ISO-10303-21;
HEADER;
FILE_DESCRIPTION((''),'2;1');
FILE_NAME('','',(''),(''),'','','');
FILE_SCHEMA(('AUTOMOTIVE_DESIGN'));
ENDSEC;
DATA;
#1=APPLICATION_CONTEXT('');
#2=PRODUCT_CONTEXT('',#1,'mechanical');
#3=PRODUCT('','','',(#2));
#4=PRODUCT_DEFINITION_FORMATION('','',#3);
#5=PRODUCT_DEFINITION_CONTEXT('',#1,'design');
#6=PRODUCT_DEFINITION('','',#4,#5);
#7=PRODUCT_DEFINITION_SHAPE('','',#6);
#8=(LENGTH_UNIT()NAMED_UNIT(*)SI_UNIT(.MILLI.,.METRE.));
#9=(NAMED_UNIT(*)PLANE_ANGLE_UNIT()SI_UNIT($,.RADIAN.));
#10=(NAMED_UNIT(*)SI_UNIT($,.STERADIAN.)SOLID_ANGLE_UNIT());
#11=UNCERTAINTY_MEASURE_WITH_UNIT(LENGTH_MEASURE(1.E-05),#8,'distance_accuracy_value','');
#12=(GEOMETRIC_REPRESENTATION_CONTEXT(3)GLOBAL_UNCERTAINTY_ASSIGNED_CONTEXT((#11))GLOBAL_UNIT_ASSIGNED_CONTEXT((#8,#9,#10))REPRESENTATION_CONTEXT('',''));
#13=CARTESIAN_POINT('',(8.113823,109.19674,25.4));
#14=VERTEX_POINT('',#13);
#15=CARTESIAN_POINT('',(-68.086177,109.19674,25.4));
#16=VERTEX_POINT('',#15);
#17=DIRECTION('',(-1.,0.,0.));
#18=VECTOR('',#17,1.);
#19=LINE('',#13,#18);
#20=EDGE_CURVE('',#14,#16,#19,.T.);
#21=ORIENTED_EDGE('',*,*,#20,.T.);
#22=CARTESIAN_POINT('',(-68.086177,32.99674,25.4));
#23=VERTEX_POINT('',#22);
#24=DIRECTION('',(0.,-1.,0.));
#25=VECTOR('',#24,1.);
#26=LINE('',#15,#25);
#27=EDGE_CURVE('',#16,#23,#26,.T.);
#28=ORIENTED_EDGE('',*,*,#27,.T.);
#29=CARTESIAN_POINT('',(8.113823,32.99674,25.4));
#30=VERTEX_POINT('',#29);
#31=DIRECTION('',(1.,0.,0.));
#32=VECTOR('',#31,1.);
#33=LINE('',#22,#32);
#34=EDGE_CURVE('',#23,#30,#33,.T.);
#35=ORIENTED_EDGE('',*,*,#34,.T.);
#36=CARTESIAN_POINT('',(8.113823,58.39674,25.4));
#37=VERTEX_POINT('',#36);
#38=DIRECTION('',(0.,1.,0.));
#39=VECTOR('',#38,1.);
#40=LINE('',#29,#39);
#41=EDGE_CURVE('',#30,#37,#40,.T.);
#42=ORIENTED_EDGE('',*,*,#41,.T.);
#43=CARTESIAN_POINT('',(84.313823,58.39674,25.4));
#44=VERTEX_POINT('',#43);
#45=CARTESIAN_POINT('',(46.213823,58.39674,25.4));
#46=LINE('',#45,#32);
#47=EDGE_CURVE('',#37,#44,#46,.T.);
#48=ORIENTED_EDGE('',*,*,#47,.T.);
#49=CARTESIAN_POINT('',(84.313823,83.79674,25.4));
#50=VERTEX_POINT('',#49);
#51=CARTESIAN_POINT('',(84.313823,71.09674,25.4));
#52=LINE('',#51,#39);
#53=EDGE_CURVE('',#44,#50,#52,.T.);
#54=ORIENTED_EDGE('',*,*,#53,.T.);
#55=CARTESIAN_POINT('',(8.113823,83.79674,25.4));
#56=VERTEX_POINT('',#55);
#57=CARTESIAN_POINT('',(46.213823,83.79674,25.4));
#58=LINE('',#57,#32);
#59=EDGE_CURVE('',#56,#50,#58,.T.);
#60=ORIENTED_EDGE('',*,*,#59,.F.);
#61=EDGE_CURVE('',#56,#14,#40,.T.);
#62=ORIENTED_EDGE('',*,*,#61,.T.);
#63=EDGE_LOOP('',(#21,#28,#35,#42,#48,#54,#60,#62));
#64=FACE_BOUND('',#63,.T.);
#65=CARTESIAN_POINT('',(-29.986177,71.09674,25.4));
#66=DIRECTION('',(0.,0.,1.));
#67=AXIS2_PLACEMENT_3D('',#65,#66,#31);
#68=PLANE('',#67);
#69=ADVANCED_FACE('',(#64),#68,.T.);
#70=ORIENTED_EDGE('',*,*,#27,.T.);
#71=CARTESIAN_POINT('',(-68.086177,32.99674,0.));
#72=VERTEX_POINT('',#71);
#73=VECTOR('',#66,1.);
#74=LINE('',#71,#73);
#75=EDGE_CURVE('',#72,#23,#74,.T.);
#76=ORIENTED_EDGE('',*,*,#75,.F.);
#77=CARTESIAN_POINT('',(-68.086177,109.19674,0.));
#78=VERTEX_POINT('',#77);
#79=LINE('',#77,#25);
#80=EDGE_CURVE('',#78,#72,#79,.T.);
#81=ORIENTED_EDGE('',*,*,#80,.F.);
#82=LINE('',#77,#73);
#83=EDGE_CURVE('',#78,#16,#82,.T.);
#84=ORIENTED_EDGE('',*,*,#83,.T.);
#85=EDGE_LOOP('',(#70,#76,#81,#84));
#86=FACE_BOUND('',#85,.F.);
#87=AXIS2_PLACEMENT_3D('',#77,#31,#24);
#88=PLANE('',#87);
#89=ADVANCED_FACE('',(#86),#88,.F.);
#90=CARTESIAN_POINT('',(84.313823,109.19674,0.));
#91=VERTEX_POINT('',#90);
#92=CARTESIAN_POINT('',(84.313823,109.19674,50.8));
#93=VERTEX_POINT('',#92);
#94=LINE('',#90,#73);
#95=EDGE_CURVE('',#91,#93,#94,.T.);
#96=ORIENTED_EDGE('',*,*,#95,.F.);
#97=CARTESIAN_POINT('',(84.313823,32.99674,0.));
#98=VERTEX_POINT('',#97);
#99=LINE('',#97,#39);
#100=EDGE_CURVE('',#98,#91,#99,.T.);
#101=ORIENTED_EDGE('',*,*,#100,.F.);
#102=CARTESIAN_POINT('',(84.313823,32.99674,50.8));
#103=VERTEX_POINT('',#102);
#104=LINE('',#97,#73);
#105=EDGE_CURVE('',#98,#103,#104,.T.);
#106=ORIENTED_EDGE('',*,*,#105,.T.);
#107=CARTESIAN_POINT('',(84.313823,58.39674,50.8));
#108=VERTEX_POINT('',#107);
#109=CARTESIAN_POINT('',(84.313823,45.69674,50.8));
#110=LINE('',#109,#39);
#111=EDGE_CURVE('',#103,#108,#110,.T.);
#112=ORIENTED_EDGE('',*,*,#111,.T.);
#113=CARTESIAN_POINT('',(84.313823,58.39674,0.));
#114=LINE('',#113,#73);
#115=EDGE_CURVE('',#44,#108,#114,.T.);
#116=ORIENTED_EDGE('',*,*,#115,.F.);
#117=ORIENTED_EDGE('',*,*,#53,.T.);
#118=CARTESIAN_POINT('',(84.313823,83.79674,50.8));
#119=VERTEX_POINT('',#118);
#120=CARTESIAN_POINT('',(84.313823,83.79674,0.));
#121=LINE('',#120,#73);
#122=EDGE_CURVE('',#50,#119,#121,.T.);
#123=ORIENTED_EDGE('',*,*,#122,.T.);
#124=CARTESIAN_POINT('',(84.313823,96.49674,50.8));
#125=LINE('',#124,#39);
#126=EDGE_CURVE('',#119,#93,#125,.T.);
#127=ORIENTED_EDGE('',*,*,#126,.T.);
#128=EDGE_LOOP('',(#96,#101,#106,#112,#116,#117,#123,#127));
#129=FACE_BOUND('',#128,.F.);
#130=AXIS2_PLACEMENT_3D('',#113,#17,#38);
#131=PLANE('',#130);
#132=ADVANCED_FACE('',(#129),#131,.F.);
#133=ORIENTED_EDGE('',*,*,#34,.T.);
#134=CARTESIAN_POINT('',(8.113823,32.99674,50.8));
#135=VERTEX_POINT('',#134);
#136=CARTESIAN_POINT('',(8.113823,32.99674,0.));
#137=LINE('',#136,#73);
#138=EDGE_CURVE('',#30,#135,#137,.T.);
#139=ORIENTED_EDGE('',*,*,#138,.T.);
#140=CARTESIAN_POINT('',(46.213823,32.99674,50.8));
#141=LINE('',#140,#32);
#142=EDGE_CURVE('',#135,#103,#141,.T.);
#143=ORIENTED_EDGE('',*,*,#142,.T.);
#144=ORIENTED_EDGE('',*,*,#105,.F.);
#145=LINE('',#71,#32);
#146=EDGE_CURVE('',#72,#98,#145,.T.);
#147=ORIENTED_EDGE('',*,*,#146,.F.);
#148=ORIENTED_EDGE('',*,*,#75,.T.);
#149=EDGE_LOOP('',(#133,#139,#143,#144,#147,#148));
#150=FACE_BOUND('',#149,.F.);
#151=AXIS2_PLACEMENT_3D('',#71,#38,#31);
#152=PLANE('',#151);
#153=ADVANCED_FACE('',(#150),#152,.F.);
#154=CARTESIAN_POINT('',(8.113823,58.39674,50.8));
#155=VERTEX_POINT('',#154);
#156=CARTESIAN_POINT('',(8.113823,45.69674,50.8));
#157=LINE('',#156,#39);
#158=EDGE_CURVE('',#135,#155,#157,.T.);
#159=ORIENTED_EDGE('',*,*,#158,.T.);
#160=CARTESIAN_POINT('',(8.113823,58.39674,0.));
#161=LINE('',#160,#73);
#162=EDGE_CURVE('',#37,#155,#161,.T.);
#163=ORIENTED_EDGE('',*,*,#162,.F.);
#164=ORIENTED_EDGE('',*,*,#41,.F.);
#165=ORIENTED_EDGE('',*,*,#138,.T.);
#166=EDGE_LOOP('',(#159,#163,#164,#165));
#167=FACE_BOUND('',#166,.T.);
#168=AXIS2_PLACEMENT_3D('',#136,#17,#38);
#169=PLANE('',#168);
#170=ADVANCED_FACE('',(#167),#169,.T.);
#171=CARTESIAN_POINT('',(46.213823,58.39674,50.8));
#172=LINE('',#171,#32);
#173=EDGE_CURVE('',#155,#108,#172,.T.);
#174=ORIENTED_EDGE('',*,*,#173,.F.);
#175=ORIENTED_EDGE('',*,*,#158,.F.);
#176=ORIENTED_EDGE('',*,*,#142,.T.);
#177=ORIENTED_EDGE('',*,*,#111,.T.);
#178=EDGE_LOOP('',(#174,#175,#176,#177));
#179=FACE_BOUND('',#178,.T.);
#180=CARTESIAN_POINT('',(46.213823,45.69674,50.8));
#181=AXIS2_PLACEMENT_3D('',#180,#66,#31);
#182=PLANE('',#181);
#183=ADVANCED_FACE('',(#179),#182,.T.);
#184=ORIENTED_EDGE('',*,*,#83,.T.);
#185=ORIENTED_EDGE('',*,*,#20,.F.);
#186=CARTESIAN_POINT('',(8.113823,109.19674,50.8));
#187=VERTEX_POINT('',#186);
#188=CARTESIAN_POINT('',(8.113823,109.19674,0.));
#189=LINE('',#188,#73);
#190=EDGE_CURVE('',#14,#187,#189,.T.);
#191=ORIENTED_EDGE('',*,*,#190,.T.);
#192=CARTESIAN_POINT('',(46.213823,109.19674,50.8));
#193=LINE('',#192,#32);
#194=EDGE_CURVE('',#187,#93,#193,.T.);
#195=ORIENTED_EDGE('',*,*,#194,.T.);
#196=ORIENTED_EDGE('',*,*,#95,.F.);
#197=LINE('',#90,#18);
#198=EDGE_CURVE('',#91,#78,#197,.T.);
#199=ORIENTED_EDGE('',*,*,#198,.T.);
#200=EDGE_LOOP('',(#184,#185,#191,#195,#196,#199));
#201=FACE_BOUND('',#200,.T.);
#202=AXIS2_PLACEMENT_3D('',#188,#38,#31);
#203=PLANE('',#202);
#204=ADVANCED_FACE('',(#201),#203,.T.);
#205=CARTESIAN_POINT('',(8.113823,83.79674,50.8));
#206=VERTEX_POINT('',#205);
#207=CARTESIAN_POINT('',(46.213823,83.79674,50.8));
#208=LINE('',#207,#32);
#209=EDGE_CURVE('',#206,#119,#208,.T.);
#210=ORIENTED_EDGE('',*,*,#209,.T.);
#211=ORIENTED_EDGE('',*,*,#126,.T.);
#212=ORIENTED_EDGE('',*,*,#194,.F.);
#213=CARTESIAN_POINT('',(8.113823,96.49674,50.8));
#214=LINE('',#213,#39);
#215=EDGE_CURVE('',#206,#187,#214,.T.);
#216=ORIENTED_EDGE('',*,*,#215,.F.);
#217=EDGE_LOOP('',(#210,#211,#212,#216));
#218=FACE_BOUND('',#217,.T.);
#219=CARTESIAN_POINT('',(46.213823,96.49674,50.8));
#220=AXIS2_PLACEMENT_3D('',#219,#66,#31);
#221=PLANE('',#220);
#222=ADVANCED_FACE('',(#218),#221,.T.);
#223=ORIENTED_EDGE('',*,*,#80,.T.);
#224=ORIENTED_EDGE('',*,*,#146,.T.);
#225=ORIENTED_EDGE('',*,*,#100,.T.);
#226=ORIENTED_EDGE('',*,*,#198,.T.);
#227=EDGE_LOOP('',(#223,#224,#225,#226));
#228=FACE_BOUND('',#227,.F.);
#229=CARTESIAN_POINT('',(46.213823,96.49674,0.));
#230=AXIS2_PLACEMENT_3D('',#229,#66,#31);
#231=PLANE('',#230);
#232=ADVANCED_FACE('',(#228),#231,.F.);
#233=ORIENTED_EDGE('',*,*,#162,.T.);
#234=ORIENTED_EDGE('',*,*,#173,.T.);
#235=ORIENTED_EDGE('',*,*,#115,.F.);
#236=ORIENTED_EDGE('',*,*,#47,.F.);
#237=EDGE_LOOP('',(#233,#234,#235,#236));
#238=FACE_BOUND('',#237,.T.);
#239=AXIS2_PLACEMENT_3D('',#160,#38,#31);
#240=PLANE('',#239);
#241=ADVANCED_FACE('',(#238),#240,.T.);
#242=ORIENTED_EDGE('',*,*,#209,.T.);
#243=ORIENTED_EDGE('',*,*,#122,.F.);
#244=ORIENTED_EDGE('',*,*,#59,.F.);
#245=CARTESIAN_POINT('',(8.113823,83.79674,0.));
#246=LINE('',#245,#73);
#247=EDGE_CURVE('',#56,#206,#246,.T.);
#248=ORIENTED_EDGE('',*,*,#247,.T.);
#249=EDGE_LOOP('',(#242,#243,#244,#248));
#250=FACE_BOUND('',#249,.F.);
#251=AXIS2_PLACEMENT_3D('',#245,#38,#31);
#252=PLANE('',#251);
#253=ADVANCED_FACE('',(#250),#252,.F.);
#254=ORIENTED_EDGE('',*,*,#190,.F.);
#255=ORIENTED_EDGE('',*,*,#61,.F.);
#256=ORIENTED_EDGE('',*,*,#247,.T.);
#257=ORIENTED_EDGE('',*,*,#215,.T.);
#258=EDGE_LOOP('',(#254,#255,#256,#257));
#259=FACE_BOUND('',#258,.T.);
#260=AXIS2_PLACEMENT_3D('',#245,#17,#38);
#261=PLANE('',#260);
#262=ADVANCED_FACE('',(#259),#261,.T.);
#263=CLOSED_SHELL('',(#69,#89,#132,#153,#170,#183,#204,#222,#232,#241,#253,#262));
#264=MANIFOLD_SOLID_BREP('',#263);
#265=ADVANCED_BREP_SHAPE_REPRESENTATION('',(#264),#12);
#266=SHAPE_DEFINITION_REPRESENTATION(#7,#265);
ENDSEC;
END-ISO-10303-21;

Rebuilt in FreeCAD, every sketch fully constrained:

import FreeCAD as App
import Part
import Sketcher
from FreeCAD import Vector
Q = App.Units.Quantity


def add_polygon(sketch, points):
    """Adds a closed chain of lines whose ends are joined by coincident constraints."""
    first, n = sketch.GeometryCount, len(points)
    for a, b in zip(points, points[1:] + points[:1]):
        sketch.addGeometry(Part.LineSegment(App.Vector(*a, 0), App.Vector(*b, 0)), False)
    for i in range(n):
        sketch.addConstraint(Sketcher.Constraint("Coincident", first + i, 2, first + (i + 1) % n, 1))

doc = App.newDocument("Part")
body = doc.addObject("PartDesign::Body", "Body")

sketch1 = doc.addObject("Sketcher::SketchObject", "Sketch")
body.addObject(sketch1)
sketch1.AttachmentSupport = (doc.XY_Plane, [""])
sketch1.MapMode = "FlatFace"
add_polygon(sketch1, [(8, 109), (-68, 109), (-68, 33), (8, 33), (8, 58), (84, 58), (84, 84), (8, 84)])
sketch1.addConstraint([
    Sketcher.Constraint("Horizontal", 0),
    Sketcher.Constraint("Vertical", 1),
    Sketcher.Constraint("Horizontal", 2),
    Sketcher.Constraint("Vertical", 3),
    Sketcher.Constraint("Horizontal", 4),
    Sketcher.Constraint("Vertical", 5),
    Sketcher.Constraint("Horizontal", 6),
    Sketcher.Constraint("Vertical", 7),
    Sketcher.Constraint("Vertical", 3, 2, 6, 2),
    Sketcher.Constraint("Equal", 2, 4),
    Sketcher.Constraint("Equal", 6, 1),
    Sketcher.Constraint("Equal", 3, 5),
    Sketcher.Constraint("Equal", 5, 7),
    Sketcher.Constraint("DistanceX", 0, 2, 0, 1, Q("3 in")),
    Sketcher.Constraint("DistanceY", -1, 1, 0, 2, 109.19674),
    Sketcher.Constraint("DistanceX", 0, 2, -1, 1, 68.086177),
])
pad1 = doc.addObject("PartDesign::Pad", "Pad")
body.addObject(pad1)
pad1.Profile = sketch1
pad1.Length = Q("1 in")

sketch2 = doc.addObject("Sketcher::SketchObject", "Sketch001")
body.addObject(sketch2)
sketch2.AttachmentSupport = (doc.XY_Plane, [""])
sketch2.MapMode = "FlatFace"
add_polygon(sketch2, [(8, 109), (8, 84), (84, 84), (84, 109)])
add_polygon(sketch2, [(8, 58), (8, 33), (84, 33), (84, 58)])
sketch2.addConstraint([
    Sketcher.Constraint("Vertical", 0),
    Sketcher.Constraint("Horizontal", 1),
    Sketcher.Constraint("Vertical", 2),
    Sketcher.Constraint("Horizontal", 3),
    Sketcher.Constraint("Vertical", 4),
    Sketcher.Constraint("Horizontal", 5),
    Sketcher.Constraint("Vertical", 6),
    Sketcher.Constraint("Horizontal", 7),
    Sketcher.Constraint("Vertical", 3, 2, 4, 2),
    Sketcher.Constraint("Vertical", 2, 2, 5, 2),
    Sketcher.Constraint("Equal", 2, 4),
    Sketcher.Constraint("DistanceX", 1, 1, 1, 2, Q("3 in")),
    Sketcher.Constraint("DistanceY", 0, 2, 0, 1, Q("1 in")),
    Sketcher.Constraint("DistanceY", 4, 2, 0, 2, Q("2 in")),
    Sketcher.Constraint("DistanceY", -1, 1, 0, 2, 83.79674),
    Sketcher.Constraint("DistanceX", -1, 1, 0, 2, 8.113823),
])
pad2 = doc.addObject("PartDesign::Pad", "Pad001")
body.addObject(pad2)
pad2.Profile = sketch2
pad2.Length = Q("2 in")

doc.recompute()
